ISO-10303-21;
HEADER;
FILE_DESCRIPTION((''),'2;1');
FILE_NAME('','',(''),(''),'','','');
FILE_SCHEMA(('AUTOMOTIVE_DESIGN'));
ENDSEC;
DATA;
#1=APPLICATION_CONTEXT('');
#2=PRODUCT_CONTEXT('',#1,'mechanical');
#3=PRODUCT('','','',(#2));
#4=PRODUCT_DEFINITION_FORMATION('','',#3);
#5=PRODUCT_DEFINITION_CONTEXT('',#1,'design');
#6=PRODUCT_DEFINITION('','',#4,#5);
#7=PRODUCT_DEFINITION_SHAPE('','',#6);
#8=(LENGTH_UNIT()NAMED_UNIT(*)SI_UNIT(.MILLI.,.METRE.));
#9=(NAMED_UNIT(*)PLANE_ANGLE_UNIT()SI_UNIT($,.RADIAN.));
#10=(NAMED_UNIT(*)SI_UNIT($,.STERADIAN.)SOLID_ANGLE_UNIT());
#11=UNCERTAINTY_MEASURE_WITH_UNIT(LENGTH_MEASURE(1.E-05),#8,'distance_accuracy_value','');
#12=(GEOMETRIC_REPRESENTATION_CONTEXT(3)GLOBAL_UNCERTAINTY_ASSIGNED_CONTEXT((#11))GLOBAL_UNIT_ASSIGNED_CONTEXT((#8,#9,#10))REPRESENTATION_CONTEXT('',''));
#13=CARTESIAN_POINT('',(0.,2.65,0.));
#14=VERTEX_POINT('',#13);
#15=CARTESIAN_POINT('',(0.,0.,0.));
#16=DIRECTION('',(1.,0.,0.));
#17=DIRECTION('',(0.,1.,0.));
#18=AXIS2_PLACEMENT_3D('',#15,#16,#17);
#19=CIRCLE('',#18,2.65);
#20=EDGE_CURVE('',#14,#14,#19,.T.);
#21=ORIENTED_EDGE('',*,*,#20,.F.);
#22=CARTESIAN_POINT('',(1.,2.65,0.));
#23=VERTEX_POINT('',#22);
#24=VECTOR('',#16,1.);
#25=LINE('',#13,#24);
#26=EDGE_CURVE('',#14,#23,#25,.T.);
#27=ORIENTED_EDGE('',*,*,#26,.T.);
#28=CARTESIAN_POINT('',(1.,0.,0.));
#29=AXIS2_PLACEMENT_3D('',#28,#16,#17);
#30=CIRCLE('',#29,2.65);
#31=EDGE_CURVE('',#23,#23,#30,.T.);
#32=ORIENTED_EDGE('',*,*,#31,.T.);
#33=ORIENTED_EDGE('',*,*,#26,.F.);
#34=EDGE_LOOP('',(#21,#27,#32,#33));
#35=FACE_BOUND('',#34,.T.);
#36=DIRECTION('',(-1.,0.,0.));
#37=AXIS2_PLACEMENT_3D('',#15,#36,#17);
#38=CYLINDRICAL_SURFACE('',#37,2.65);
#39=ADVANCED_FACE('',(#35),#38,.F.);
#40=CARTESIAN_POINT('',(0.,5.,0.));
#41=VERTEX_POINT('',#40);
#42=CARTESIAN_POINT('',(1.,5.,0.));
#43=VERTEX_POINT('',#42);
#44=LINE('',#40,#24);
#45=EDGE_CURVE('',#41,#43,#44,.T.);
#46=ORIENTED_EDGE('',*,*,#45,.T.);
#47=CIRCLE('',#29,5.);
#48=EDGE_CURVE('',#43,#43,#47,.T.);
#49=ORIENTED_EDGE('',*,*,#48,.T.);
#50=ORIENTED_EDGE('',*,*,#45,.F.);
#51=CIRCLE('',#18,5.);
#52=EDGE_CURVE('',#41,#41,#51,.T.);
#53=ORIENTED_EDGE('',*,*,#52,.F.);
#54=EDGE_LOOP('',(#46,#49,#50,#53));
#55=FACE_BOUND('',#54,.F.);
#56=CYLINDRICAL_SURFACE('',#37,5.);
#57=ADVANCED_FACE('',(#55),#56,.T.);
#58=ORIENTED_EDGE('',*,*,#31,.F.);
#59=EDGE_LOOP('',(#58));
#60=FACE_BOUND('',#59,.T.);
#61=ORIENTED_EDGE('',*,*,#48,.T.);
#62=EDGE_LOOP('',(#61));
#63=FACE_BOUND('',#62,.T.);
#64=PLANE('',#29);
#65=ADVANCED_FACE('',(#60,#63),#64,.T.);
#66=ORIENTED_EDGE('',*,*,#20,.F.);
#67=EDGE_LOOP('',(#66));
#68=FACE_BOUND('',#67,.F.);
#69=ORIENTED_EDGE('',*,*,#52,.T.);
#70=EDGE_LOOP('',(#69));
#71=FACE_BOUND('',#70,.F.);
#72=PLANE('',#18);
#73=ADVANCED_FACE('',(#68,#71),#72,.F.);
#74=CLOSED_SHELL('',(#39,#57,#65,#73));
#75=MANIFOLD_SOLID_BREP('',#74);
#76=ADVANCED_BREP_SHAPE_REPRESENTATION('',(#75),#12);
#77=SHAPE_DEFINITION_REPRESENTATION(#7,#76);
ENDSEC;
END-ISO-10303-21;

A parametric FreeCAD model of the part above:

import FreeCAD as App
import Part
import Sketcher

V = App.Vector

doc = App.newDocument("Part")
body = doc.addObject("PartDesign::Body", "Body")

# Sketch on YZ plane
sketch1 = doc.addObject("Sketcher::SketchObject", "Sketch")
body.addObject(sketch1)
sketch1.AttachmentSupport = (doc.YZ_Plane, [""])
sketch1.MapMode = "FlatFace"
sketch1.addGeometry(Part.Circle(V(0, 0, 0), V(0, 0, 1), 5), False)
sketch1.addGeometry(Part.Circle(V(0, 0, 0), V(0, 0, 1), 2.6), False)
sketch1.addConstraint(Sketcher.Constraint("Coincident", 0, 3, -1, 1))
sketch1.addConstraint(Sketcher.Constraint("Coincident", 1, 3, -1, 1))
sketch1.addConstraint(Sketcher.Constraint("Diameter", 0, 10.0))
sketch1.addConstraint(Sketcher.Constraint("Diameter", 1, 5.3))
pad1 = doc.addObject("PartDesign::Pad", "Pad")
body.addObject(pad1)
pad1.Profile = sketch1
pad1.Length = 1

doc.recompute()
